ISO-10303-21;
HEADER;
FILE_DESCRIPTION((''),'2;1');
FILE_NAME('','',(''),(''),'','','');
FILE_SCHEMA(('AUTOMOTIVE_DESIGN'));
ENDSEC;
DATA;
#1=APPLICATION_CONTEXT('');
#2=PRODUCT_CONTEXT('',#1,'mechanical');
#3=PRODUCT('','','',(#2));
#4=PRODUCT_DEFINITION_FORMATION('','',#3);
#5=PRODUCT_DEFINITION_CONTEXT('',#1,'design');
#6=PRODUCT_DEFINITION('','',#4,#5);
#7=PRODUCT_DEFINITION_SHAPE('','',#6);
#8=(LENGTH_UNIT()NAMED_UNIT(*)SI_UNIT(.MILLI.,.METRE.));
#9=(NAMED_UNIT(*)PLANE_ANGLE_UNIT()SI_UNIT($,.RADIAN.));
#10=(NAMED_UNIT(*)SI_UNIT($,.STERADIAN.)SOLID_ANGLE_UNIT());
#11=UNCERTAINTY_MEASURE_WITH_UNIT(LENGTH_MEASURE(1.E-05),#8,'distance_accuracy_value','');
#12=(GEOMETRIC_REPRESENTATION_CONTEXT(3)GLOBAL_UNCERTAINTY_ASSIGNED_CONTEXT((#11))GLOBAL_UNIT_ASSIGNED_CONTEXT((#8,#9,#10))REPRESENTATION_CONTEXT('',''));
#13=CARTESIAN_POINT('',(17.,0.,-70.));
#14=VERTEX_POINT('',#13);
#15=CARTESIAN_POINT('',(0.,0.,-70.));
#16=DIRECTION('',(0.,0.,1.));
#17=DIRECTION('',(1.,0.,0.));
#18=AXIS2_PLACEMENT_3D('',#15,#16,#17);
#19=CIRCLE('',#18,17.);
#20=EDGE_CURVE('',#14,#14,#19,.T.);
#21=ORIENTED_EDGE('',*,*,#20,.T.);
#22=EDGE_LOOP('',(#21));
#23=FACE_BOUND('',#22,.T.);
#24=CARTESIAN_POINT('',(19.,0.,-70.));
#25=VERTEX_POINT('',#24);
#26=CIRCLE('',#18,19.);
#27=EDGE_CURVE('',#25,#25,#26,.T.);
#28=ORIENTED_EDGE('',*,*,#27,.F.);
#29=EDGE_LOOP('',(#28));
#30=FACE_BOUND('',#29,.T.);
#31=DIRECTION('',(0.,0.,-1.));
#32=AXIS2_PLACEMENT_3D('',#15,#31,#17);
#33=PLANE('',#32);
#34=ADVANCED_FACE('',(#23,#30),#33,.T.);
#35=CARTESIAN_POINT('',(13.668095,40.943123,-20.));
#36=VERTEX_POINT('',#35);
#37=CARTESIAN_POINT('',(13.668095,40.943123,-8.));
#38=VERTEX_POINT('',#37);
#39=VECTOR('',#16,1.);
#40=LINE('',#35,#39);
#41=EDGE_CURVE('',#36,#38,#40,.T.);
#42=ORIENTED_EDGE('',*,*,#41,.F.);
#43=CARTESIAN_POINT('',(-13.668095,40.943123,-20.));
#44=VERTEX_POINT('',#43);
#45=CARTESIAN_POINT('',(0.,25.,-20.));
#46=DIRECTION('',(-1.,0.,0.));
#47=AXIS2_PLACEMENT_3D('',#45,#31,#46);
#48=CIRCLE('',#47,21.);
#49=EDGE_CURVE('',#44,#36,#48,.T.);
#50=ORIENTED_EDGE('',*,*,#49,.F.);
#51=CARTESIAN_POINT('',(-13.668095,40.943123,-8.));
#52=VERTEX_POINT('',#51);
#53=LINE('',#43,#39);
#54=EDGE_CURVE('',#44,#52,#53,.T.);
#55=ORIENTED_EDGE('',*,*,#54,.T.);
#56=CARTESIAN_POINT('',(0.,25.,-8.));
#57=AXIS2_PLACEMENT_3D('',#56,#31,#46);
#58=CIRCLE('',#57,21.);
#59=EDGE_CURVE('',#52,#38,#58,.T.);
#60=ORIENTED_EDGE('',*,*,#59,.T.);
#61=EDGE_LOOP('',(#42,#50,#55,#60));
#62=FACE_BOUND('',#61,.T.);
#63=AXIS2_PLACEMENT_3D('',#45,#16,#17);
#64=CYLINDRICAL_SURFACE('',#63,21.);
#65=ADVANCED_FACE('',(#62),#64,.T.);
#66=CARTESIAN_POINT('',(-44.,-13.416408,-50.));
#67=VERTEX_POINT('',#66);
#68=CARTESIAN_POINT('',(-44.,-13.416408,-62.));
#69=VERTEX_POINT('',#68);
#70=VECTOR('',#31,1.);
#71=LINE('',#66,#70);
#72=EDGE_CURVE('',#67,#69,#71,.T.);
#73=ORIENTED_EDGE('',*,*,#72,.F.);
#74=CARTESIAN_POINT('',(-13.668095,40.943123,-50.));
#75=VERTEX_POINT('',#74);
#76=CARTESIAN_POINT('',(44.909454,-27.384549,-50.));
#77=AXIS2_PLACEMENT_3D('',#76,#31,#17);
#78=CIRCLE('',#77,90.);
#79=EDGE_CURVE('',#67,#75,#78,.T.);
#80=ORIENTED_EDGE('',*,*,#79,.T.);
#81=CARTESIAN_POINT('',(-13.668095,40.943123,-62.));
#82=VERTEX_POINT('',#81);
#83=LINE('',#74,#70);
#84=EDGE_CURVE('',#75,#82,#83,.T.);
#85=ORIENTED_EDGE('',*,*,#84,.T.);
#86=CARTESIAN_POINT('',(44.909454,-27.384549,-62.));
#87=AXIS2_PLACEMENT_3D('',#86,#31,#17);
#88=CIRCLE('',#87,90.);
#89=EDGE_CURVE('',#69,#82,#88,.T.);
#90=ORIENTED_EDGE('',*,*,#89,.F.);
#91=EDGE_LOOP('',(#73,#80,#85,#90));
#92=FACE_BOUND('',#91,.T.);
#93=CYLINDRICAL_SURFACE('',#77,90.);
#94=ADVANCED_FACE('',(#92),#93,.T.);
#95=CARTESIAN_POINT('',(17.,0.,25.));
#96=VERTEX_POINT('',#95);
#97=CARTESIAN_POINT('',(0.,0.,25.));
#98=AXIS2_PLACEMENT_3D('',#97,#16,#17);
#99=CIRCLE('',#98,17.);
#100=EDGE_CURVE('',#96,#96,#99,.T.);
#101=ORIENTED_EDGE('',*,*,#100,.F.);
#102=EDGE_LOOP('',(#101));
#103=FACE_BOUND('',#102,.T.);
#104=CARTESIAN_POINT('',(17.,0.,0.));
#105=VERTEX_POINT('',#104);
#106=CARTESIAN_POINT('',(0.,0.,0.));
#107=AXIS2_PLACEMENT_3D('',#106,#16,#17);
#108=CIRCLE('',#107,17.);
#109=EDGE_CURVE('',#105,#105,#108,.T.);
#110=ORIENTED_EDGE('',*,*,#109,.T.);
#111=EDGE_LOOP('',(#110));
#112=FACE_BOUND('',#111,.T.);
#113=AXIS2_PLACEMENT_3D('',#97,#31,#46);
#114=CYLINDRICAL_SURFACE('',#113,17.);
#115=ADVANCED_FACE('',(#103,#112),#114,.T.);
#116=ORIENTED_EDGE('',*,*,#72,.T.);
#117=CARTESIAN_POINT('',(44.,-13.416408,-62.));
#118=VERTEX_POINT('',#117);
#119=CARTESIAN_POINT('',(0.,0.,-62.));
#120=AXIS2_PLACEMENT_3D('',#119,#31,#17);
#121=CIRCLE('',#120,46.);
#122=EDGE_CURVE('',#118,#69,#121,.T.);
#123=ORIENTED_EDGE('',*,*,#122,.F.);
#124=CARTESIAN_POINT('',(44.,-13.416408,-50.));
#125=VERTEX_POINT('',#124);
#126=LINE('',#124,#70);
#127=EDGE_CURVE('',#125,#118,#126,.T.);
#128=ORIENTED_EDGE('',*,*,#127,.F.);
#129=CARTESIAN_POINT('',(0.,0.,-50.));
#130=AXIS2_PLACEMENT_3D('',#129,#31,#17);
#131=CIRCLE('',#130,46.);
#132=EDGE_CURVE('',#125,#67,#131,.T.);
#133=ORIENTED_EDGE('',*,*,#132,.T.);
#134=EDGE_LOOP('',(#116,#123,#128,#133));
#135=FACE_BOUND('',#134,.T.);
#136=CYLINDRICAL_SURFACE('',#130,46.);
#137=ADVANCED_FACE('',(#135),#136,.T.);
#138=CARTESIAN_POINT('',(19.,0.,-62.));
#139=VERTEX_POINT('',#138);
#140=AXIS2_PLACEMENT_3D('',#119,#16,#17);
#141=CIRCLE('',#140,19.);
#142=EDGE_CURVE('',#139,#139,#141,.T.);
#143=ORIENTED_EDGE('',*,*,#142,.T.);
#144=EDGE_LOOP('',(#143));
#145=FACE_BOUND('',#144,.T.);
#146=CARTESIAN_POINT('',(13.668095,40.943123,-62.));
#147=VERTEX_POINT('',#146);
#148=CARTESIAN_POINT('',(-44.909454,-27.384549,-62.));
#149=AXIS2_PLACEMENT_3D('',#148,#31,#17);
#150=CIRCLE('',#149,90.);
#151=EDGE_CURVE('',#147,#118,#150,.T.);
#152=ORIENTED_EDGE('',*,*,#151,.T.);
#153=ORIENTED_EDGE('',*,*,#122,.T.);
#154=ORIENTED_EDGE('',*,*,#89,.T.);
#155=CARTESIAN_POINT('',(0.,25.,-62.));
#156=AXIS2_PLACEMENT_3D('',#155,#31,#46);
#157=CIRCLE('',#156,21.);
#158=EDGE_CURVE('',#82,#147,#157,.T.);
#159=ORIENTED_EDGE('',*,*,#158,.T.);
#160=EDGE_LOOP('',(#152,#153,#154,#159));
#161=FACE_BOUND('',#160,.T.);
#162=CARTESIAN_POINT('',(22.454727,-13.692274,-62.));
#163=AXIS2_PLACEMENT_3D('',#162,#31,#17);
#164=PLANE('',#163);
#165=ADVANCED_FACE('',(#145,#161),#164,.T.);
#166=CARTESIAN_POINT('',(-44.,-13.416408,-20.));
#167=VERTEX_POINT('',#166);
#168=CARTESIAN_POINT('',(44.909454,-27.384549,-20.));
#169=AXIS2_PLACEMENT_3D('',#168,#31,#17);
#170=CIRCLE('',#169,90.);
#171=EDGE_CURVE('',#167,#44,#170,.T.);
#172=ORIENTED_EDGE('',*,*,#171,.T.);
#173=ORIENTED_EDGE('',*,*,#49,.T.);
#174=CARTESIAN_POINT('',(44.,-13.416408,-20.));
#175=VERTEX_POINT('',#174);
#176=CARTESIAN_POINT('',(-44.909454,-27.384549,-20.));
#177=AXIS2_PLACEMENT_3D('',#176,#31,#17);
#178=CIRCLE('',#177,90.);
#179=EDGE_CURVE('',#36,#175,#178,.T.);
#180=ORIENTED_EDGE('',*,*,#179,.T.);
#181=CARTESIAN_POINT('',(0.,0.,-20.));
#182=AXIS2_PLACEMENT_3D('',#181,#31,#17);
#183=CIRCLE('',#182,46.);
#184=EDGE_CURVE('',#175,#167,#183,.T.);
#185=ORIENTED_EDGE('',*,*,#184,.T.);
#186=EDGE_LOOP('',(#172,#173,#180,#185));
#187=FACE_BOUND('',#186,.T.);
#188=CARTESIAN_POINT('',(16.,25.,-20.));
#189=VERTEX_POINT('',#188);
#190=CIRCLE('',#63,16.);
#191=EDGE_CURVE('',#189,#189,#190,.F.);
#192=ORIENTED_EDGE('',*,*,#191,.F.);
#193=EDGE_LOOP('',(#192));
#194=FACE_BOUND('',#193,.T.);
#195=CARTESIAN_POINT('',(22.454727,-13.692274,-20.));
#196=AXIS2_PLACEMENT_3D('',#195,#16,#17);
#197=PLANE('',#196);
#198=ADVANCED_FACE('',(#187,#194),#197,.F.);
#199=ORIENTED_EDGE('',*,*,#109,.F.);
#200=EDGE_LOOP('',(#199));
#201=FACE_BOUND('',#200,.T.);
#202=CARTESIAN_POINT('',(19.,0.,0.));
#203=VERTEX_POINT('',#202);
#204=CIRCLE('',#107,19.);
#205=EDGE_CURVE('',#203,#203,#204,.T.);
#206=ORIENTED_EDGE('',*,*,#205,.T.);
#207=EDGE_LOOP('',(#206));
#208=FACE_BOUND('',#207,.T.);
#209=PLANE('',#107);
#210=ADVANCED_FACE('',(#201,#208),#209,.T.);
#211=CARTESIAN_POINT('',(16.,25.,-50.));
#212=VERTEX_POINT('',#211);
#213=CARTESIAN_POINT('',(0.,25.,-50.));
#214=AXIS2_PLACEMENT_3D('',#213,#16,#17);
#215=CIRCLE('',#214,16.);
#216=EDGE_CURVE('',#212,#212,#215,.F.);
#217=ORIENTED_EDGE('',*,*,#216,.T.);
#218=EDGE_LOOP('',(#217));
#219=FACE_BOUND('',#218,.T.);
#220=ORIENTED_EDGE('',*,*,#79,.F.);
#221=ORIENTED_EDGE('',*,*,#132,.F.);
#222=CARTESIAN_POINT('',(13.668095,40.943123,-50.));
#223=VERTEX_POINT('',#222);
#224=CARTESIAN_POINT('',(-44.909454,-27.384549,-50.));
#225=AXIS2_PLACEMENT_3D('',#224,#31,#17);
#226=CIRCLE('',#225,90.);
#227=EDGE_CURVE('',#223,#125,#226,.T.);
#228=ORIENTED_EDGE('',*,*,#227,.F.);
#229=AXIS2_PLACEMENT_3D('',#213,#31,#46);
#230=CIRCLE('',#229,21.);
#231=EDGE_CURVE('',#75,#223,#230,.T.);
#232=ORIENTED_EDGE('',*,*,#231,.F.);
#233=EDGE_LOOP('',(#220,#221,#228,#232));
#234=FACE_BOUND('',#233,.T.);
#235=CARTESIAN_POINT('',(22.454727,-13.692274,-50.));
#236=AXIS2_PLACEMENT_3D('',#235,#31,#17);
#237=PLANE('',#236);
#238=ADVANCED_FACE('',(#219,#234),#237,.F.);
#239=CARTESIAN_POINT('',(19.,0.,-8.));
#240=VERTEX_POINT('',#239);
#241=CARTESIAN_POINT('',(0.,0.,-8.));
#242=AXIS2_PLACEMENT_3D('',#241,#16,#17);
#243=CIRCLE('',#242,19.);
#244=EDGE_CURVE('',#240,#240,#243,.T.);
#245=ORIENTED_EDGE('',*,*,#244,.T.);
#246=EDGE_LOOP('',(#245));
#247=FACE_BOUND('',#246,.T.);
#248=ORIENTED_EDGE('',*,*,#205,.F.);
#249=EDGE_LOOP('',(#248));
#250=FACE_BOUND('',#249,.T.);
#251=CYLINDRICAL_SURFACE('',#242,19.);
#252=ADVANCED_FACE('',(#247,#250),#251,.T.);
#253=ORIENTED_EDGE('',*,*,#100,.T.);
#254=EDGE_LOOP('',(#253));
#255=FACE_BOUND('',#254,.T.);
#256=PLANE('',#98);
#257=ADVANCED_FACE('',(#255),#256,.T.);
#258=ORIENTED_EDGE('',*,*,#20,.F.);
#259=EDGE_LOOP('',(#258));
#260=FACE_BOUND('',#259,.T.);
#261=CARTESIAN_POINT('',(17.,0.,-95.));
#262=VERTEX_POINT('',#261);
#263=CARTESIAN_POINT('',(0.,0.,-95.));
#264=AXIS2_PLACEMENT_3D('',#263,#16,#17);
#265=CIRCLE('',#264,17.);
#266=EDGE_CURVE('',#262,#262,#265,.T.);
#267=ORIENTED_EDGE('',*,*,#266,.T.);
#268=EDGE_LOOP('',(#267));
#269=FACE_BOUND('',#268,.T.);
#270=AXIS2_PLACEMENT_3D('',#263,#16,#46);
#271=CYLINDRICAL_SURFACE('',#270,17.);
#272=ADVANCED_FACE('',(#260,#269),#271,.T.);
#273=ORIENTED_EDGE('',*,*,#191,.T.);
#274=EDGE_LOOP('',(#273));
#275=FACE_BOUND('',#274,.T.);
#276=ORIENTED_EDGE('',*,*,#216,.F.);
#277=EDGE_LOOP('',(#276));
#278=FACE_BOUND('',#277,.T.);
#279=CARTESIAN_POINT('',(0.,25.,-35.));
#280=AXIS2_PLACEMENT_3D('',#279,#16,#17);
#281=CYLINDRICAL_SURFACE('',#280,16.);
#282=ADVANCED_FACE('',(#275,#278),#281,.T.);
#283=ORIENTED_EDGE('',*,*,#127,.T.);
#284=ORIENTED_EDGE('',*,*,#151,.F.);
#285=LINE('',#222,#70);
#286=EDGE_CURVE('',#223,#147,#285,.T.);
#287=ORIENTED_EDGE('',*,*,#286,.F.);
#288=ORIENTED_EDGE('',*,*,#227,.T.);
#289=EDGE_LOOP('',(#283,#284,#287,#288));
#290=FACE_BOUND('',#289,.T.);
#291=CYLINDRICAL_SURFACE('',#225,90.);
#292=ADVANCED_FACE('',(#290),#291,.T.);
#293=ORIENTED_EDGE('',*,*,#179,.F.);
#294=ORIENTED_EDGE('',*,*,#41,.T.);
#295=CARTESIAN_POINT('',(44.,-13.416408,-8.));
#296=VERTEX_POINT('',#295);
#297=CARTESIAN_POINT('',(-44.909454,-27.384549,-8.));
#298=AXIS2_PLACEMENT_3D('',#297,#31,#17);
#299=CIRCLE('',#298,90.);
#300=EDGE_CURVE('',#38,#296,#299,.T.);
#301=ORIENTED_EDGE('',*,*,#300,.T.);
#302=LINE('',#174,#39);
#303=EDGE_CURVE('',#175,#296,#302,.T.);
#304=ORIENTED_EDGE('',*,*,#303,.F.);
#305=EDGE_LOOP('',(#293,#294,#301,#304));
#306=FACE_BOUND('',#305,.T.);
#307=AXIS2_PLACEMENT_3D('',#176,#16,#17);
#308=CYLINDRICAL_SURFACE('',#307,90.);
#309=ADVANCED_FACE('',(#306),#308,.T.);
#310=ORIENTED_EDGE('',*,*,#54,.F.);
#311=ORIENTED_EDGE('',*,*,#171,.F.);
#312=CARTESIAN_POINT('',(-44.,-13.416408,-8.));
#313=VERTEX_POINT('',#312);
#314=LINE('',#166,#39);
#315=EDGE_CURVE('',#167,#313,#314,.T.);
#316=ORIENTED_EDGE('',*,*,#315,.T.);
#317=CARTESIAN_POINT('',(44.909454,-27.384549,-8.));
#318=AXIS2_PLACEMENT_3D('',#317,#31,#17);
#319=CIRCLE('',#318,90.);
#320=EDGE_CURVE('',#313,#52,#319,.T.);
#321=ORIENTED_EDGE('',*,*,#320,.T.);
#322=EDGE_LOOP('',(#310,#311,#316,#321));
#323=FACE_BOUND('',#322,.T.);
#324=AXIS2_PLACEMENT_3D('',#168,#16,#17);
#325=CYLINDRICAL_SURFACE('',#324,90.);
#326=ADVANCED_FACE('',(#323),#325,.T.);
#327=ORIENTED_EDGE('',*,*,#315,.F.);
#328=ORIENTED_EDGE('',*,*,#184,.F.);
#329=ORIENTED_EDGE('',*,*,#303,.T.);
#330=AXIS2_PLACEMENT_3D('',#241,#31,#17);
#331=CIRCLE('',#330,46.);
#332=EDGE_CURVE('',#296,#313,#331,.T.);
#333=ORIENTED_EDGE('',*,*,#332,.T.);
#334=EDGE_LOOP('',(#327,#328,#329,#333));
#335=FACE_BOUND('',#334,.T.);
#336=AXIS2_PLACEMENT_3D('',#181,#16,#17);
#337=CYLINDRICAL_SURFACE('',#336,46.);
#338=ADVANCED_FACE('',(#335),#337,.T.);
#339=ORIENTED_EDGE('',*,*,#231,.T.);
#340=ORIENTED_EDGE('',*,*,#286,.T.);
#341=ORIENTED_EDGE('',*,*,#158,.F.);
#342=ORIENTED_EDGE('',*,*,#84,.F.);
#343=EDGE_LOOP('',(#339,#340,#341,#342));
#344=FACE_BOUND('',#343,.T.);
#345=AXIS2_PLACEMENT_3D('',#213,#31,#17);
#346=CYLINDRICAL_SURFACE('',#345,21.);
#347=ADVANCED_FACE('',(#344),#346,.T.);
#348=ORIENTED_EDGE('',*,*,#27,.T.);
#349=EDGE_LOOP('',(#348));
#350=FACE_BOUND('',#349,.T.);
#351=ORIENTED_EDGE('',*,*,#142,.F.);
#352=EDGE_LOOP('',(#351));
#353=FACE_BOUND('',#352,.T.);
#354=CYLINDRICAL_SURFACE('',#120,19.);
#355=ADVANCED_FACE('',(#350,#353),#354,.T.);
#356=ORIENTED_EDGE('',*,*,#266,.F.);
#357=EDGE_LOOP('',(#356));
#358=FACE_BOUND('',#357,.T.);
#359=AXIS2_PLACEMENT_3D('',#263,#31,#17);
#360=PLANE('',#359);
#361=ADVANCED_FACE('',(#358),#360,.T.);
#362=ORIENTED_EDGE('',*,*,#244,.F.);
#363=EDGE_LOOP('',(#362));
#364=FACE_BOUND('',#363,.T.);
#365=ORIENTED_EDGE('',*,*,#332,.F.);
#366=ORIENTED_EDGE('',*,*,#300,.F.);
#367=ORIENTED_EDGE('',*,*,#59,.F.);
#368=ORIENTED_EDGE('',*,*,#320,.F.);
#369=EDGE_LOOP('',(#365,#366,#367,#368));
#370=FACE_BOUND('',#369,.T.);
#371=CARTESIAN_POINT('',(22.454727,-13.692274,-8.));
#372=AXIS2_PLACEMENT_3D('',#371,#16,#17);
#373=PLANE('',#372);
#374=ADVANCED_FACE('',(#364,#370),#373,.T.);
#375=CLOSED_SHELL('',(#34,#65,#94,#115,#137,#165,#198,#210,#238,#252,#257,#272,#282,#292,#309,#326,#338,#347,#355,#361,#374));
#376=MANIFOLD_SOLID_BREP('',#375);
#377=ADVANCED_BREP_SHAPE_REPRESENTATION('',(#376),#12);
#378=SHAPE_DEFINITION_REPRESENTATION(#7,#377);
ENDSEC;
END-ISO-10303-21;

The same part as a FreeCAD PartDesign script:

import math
import FreeCAD as App
import Part
import Sketcher

V = App.Vector
Q = App.Units.Quantity

doc = App.newDocument("Part")
body = doc.addObject("PartDesign::Body", "Body")

sketch1 = body.newObject("Sketcher::SketchObject", "Sketch")
sketch1.AttachmentSupport = (doc.getObject("XY_Plane"), [""])
sketch1.MapMode = "FlatFace"
sketch1.addGeometry(Part.Circle(V(0, 0, 0), V(0, 0, 1), 17), False)
sketch1.addConstraint([
    Sketcher.Constraint("Coincident", 0, 3, -1, 1),
    Sketcher.Constraint("Diameter", 0, Q("34 mm")),
])
pad1 = body.newObject("PartDesign::Pad", "Pad")
pad1.Profile = sketch1
pad1.Length = 25

sketch2 = body.newObject("Sketcher::SketchObject", "Sketch001")
sketch2.AttachmentSupport = (doc.getObject("XY_Plane"), [""])
sketch2.MapMode = "FlatFace"
sketch2.addGeometry(Part.Circle(V(0, 0, 0), V(0, 0, 1), 19), False)
sketch2.addConstraint([
    Sketcher.Constraint("Coincident", 0, 3, -1, 1),
    Sketcher.Constraint("Diameter", 0, Q("38 mm")),
])
pad2 = body.newObject("PartDesign::Pad", "Pad001")
pad2.Profile = sketch2
pad2.Length = 8
pad2.Reversed = True

sketch3 = body.newObject("Sketcher::SketchObject", "Sketch002")
sketch3.AttachmentSupport = (doc.getObject("XY_Plane"), [""])
sketch3.MapMode = "FlatFace"
sketch3.AttachmentOffset = App.Placement(V(0, 0, -8), App.Rotation())
sketch3.addGeometry([
    Part.ArcOfCircle(Part.Circle(V(0, 0, 0), V(0, 0, 1), 46), math.radians(-163.042574), math.radians(-16.957426)),
    Part.ArcOfCircle(Part.Circle(V(44.909454, -27.384549, 0), V(0, 0, 1), 90), math.radians(130.606599), math.radians(171.071514)),
    Part.ArcOfCircle(Part.Circle(V(0, 25, 0), V(0, 0, 1), 21), math.radians(49.393401), math.radians(130.606599)),
    Part.ArcOfCircle(Part.Circle(V(-44.909454, -27.384549, 0), V(0, 0, 1), 90), math.radians(8.928486), math.radians(49.393401)),
], False)
sketch3.addConstraint([
    Sketcher.Constraint("Coincident", 0, 1, 1, 2),
    Sketcher.Constraint("Tangent", 1, 1, 2, 2),
    Sketcher.Constraint("Tangent", 2, 1, 3, 2),
    Sketcher.Constraint("Coincident", 3, 1, 0, 2),
    Sketcher.Constraint("Coincident", 0, 3, -1, 1),
    Sketcher.Constraint("Equal", 1, 3),
    Sketcher.Constraint("Symmetric", 1, 3, 3, 3, -2),
    Sketcher.Constraint("Radius", 0, Q("46 mm")),
    Sketcher.Constraint("Radius", 1, Q("90 mm")),
    Sketcher.Constraint("Radius", 2, Q("21 mm")),
    Sketcher.Constraint("DistanceY", -1, 1, 2, 3, Q("25 mm")),
    Sketcher.Constraint("DistanceX", 0, 1, -1, 1, Q("44 mm")),
])
pad3 = body.newObject("PartDesign::Pad", "Pad002")
pad3.Profile = sketch3
pad3.Length = 12
pad3.Reversed = True

sketch4 = body.newObject("Sketcher::SketchObject", "Sketch003")
sketch4.AttachmentSupport = (doc.getObject("XY_Plane"), [""])
sketch4.MapMode = "FlatFace"
sketch4.AttachmentOffset = App.Placement(V(0, 0, -20), App.Rotation())
sketch4.addGeometry(Part.Circle(V(0, 25, 0), V(0, 0, 1), 16), False)
sketch4.addConstraint([
    Sketcher.Constraint("PointOnObject", 0, 3, -2),
    Sketcher.Constraint("Diameter", 0, Q("32 mm")),
    Sketcher.Constraint("DistanceY", -1, 1, 0, 3, Q("25 mm")),
])
pad4 = body.newObject("PartDesign::Pad", "Pad003")
pad4.Profile = sketch4
pad4.Length = 15
pad4.Reversed = True
body2 = doc.addObject("PartDesign::Body", "Body001")
doc.recompute()

body2.BaseFeature = body
doc.recompute()

mirroring = doc.addObject("Part::Mirroring", "Mirroring")
mirroring.Source = body
mirroring.Base = V(0, 25, -35)
mirroring.Normal = V(0, 0, -1)
body3 = doc.addObject("PartDesign::Body", "Body002")
body3.BaseFeature = mirroring
boolean = body2.newObject("PartDesign::Boolean", "Boolean")
boolean.Type = "Fuse"
boolean.addObjects([body3])
doc.recompute()
mirroring.Visibility = False

doc.recompute()
